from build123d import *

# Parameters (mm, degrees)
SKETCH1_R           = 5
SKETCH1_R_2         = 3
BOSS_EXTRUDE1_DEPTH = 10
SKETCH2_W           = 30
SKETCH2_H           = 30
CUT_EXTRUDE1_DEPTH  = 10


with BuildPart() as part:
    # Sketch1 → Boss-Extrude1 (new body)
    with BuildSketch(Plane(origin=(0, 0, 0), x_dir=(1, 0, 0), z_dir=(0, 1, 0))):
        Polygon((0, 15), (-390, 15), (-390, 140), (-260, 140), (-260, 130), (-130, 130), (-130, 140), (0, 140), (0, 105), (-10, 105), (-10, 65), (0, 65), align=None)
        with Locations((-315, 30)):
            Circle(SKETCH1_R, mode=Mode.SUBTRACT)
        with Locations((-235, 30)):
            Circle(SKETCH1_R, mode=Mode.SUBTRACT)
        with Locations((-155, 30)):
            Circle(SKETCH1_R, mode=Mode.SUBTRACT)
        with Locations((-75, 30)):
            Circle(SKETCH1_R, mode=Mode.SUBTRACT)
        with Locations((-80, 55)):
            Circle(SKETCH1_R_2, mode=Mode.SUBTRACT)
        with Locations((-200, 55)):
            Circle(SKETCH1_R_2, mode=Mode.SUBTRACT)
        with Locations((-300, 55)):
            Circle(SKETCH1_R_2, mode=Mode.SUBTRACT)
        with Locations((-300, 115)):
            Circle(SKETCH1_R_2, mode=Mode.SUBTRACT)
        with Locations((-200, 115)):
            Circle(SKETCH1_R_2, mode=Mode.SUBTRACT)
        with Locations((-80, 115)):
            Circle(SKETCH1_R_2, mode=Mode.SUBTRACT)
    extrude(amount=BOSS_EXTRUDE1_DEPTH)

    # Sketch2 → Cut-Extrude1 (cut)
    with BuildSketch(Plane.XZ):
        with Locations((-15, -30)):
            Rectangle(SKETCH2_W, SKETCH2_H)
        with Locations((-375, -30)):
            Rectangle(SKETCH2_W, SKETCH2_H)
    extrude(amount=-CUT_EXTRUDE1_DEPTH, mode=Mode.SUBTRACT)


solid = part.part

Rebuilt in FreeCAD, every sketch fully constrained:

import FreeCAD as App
import Part
import Sketcher
Q = App.Units.Quantity

doc = App.newDocument("Part")
body = doc.addObject("PartDesign::Body", "Body")

# Sketch on XZ plane
sketch1 = doc.addObject("Sketcher::SketchObject", "Sketch")
body.addObject(sketch1)
sketch1.AttachmentSupport = (doc.XZ_Plane, [""])
sketch1.MapMode = "FlatFace"
sketch1.addGeometry(Part.LineSegment(App.Vector(-390, -15, 0), App.Vector(0, -15, 0)), False)
sketch1.addGeometry(Part.LineSegment(App.Vector(0, -15, 0), App.Vector(0, -65, 0)), False)
sketch1.addGeometry(Part.LineSegment(App.Vector(0, -65, 0), App.Vector(-10, -65, 0)), False)
sketch1.addGeometry(Part.LineSegment(App.Vector(-10, -65, 0), App.Vector(-10, -105, 0)), False)
sketch1.addGeometry(Part.LineSegment(App.Vector(-10, -105, 0), App.Vector(0, -105, 0)), False)
sketch1.addGeometry(Part.LineSegment(App.Vector(0, -105, 0), App.Vector(0, -140, 0)), False)
sketch1.addGeometry(Part.LineSegment(App.Vector(0, -140, 0), App.Vector(-130, -140, 0)), False)
sketch1.addGeometry(Part.LineSegment(App.Vector(-130, -140, 0), App.Vector(-130, -130, 0)), False)
sketch1.addGeometry(Part.LineSegment(App.Vector(-130, -130, 0), App.Vector(-260, -130, 0)), False)
sketch1.addGeometry(Part.LineSegment(App.Vector(-260, -130, 0), App.Vector(-260, -140, 0)), False)
sketch1.addGeometry(Part.LineSegment(App.Vector(-260, -140, 0), App.Vector(-390, -140, 0)), False)
sketch1.addGeometry(Part.LineSegment(App.Vector(-390, -140, 0), App.Vector(-390, -15, 0)), False)
sketch1.addGeometry(Part.Circle(App.Vector(-75, -30, 0), App.Vector(0, 0, 1), 5), False)
sketch1.addGeometry(Part.Circle(App.Vector(-155, -30, 0), App.Vector(0, 0, 1), 5), False)
sketch1.addGeometry(Part.Circle(App.Vector(-80, -55, 0), App.Vector(0, 0, 1), 3), False)
sketch1.addGeometry(Part.Circle(App.Vector(-235, -30, 0), App.Vector(0, 0, 1), 5), False)
sketch1.addGeometry(Part.Circle(App.Vector(-315, -30, 0), App.Vector(0, 0, 1), 5), False)
sketch1.addGeometry(Part.Circle(App.Vector(-200, -55, 0), App.Vector(0, 0, 1), 3), False)
sketch1.addGeometry(Part.Circle(App.Vector(-300, -55, 0), App.Vector(0, 0, 1), 3), False)
sketch1.addGeometry(Part.Circle(App.Vector(-80, -115, 0), App.Vector(0, 0, 1), 3), False)
sketch1.addGeometry(Part.Circle(App.Vector(-200, -115, 0), App.Vector(0, 0, 1), 3), False)
sketch1.addGeometry(Part.Circle(App.Vector(-300, -115, 0), App.Vector(0, 0, 1), 3), False)
sketch1.addConstraint(Sketcher.Constraint("Coincident", 0, 2, 1, 1))
sketch1.addConstraint(Sketcher.Constraint("Coincident", 1, 2, 2, 1))
sketch1.addConstraint(Sketcher.Constraint("Coincident", 2, 2, 3, 1))
sketch1.addConstraint(Sketcher.Constraint("Coincident", 3, 2, 4, 1))
sketch1.addConstraint(Sketcher.Constraint("Coincident", 4, 2, 5, 1))
sketch1.addConstraint(Sketcher.Constraint("Coincident", 5, 2, 6, 1))
sketch1.addConstraint(Sketcher.Constraint("Coincident", 6, 2, 7, 1))
sketch1.addConstraint(Sketcher.Constraint("Coincident", 7, 2, 8, 1))
sketch1.addConstraint(Sketcher.Constraint("Coincident", 8, 2, 9, 1))
sketch1.addConstraint(Sketcher.Constraint("Coincident", 9, 2, 10, 1))
sketch1.addConstraint(Sketcher.Constraint("Coincident", 10, 2, 11, 1))
sketch1.addConstraint(Sketcher.Constraint("Coincident", 11, 2, 0, 1))
sketch1.addConstraint(Sketcher.Constraint("Horizontal", 0))
sketch1.addConstraint(Sketcher.Constraint("Vertical", 1))
sketch1.addConstraint(Sketcher.Constraint("Horizontal", 2))
sketch1.addConstraint(Sketcher.Constraint("Vertical", 3))
sketch1.addConstraint(Sketcher.Constraint("Horizontal", 4))
sketch1.addConstraint(Sketcher.Constraint("Vertical", 5))
sketch1.addConstraint(Sketcher.Constraint("Horizontal", 6))
sketch1.addConstraint(Sketcher.Constraint("Vertical", 7))
sketch1.addConstraint(Sketcher.Constraint("Horizontal", 8))
sketch1.addConstraint(Sketcher.Constraint("Vertical", 9))
sketch1.addConstraint(Sketcher.Constraint("Horizontal", 10))
sketch1.addConstraint(Sketcher.Constraint("Vertical", 11))
sketch1.addConstraint(Sketcher.Constraint("Equal", 12, 13))
sketch1.addConstraint(Sketcher.Constraint("Equal", 13, 15))
sketch1.addConstraint(Sketcher.Constraint("Equal", 15, 16))
sketch1.addConstraint(Sketcher.Constraint("Equal", 14, 17))
sketch1.addConstraint(Sketcher.Constraint("Equal", 17, 18))
sketch1.addConstraint(Sketcher.Constraint("Equal", 18, 19))
sketch1.addConstraint(Sketcher.Constraint("Equal", 19, 20))
sketch1.addConstraint(Sketcher.Constraint("Equal", 20, 21))
sketch1.addConstraint(Sketcher.Constraint("PointOnObject", 0, 2, -2))
sketch1.addConstraint(Sketcher.Constraint("PointOnObject", 4, 2, -2))
sketch1.addConstraint(Sketcher.Constraint("Horizontal", 12, 3, 13, 3))
sketch1.addConstraint(Sketcher.Constraint("Horizontal", 13, 3, 15, 3))
sketch1.addConstraint(Sketcher.Constraint("Horizontal", 15, 3, 16, 3))
sketch1.addConstraint(Sketcher.Constraint("Horizontal", 14, 3, 17, 3))
sketch1.addConstraint(Sketcher.Constraint("Horizontal", 17, 3, 18, 3))
sketch1.addConstraint(Sketcher.Constraint("Horizontal", 19, 3, 20, 3))
sketch1.addConstraint(Sketcher.Constraint("Horizontal", 20, 3, 21, 3))
sketch1.addConstraint(Sketcher.Constraint("Horizontal", 6, 2, 9, 2))
sketch1.addConstraint(Sketcher.Constraint("Vertical", 14, 3, 19, 3))
sketch1.addConstraint(Sketcher.Constraint("Vertical", 17, 3, 20, 3))
sketch1.addConstraint(Sketcher.Constraint("Vertical", 18, 3, 21, 3))
sketch1.addConstraint(Sketcher.Constraint("Equal", 6, 8))
sketch1.addConstraint(Sketcher.Constraint("Equal", 8, 10))
sketch1.addConstraint(Sketcher.Constraint("Equal", 4, 7))
sketch1.addConstraint(Sketcher.Constraint("Diameter", 12, Q("10 mm")))
sketch1.addConstraint(Sketcher.Constraint("Diameter", 14, Q("6 mm")))
sketch1.addConstraint(Sketcher.Constraint("DistanceX", 0, 1, 0, 2, Q("390 mm")))
sketch1.addConstraint(Sketcher.Constraint("DistanceX", 2, 2, 2, 1, Q("10 mm")))
sketch1.addConstraint(Sketcher.Constraint("DistanceY", 1, 2, 1, 1, Q("50 mm")))
sketch1.addConstraint(Sketcher.Constraint("DistanceY", 3, 2, 3, 1, Q("40 mm")))
sketch1.addConstraint(Sketcher.Constraint("DistanceY", 5, 2, 5, 1, Q("35 mm")))
sketch1.addConstraint(Sketcher.Constraint("DistanceX", 12, 3, -1, 1, Q("75 mm")))
sketch1.addConstraint(Sketcher.Constraint("DistanceY", 12, 3, -1, 1, Q("30 mm")))
sketch1.addConstraint(Sketcher.Constraint("DistanceX", 13, 3, -1, 1, Q("155 mm")))
sketch1.addConstraint(Sketcher.Constraint("DistanceX", 14, 3, -1, 1, Q("80 mm")))
sketch1.addConstraint(Sketcher.Constraint("DistanceY", 14, 3, -1, 1, Q("55 mm")))
sketch1.addConstraint(Sketcher.Constraint("DistanceX", 15, 3, -1, 1, Q("235 mm")))
sketch1.addConstraint(Sketcher.Constraint("DistanceX", 16, 3, -1, 1, Q("315 mm")))
sketch1.addConstraint(Sketcher.Constraint("DistanceX", 17, 3, -1, 1, Q("200 mm")))
sketch1.addConstraint(Sketcher.Constraint("DistanceX", 18, 3, -1, 1, Q("300 mm")))
sketch1.addConstraint(Sketcher.Constraint("DistanceY", 19, 3, -1, 1, Q("115 mm")))
sketch1.addConstraint(Sketcher.Constraint("DistanceY", 0, 2, -1, 1, Q("15 mm")))
pad1 = doc.addObject("PartDesign::Pad", "Pad")
body.addObject(pad1)
pad1.Profile = sketch1
pad1.Length = 10
pad1.Reversed = True

# Sketch on XZ plane
sketch2 = doc.addObject("Sketcher::SketchObject", "Sketch001")
body.addObject(sketch2)
sketch2.AttachmentSupport = (doc.XZ_Plane, [""])
sketch2.MapMode = "FlatFace"
sketch2.addGeometry(Part.LineSegment(App.Vector(-30, -15, 0), App.Vector(-30, -45, 0)), False)
sketch2.addGeometry(Part.LineSegment(App.Vector(-30, -45, 0), App.Vector(0, -45, 0)), False)
sketch2.addGeometry(Part.LineSegment(App.Vector(0, -45, 0), App.Vector(0, -15, 0)), False)
sketch2.addGeometry(Part.LineSegment(App.Vector(0, -15, 0), App.Vector(-30, -15, 0)), False)
sketch2.addGeometry(Part.LineSegment(App.Vector(-390, -15, 0), App.Vector(-390, -45, 0)), False)
sketch2.addGeometry(Part.LineSegment(App.Vector(-390, -45, 0), App.Vector(-360, -45, 0)), False)
sketch2.addGeometry(Part.LineSegment(App.Vector(-360, -45, 0), App.Vector(-360, -15, 0)), False)
sketch2.addGeometry(Part.LineSegment(App.Vector(-360, -15, 0), App.Vector(-390, -15, 0)), False)
sketch2.addConstraint(Sketcher.Constraint("Coincident", 0, 2, 1, 1))
sketch2.addConstraint(Sketcher.Constraint("Coincident", 1, 2, 2, 1))
sketch2.addConstraint(Sketcher.Constraint("Coincident", 2, 2, 3, 1))
sketch2.addConstraint(Sketcher.Constraint("Coincident", 3, 2, 0, 1))
sketch2.addConstraint(Sketcher.Constraint("Coincident", 4, 2, 5, 1))
sketch2.addConstraint(Sketcher.Constraint("Coincident", 5, 2, 6, 1))
sketch2.addConstraint(Sketcher.Constraint("Coincident", 6, 2, 7, 1))
sketch2.addConstraint(Sketcher.Constraint("Coincident", 7, 2, 4, 1))
sketch2.addConstraint(Sketcher.Constraint("Vertical", 0))
sketch2.addConstraint(Sketcher.Constraint("Horizontal", 1))
sketch2.addConstraint(Sketcher.Constraint("Vertical", 2))
sketch2.addConstraint(Sketcher.Constraint("Horizontal", 3))
sketch2.addConstraint(Sketcher.Constraint("Vertical", 4))
sketch2.addConstraint(Sketcher.Constraint("Horizontal", 5))
sketch2.addConstraint(Sketcher.Constraint("Vertical", 6))
sketch2.addConstraint(Sketcher.Constraint("Horizontal", 7))
sketch2.addConstraint(Sketcher.Constraint("PointOnObject", 1, 2, -2))
sketch2.addConstraint(Sketcher.Constraint("Horizontal", 1, 2, 4, 2))
sketch2.addConstraint(Sketcher.Constraint("Horizontal", 3, 2, 6, 2))
sketch2.addConstraint(Sketcher.Constraint("Equal", 3, 5))
sketch2.addConstraint(Sketcher.Constraint("Equal", 7, 0))
sketch2.addConstraint(Sketcher.Constraint("DistanceX", 1, 1, 1, 2, Q("30 mm")))
sketch2.addConstraint(Sketcher.Constraint("DistanceY", 0, 2, -1, 1, Q("45 mm")))
sketch2.addConstraint(Sketcher.Constraint("DistanceX", 4, 2, -1, 1, Q("390 mm")))
pocket1 = doc.addObject("PartDesign::Pocket", "Pocket")
body.addObject(pocket1)
pocket1.Profile = sketch2
pocket1.Length = 10

doc.recompute()
